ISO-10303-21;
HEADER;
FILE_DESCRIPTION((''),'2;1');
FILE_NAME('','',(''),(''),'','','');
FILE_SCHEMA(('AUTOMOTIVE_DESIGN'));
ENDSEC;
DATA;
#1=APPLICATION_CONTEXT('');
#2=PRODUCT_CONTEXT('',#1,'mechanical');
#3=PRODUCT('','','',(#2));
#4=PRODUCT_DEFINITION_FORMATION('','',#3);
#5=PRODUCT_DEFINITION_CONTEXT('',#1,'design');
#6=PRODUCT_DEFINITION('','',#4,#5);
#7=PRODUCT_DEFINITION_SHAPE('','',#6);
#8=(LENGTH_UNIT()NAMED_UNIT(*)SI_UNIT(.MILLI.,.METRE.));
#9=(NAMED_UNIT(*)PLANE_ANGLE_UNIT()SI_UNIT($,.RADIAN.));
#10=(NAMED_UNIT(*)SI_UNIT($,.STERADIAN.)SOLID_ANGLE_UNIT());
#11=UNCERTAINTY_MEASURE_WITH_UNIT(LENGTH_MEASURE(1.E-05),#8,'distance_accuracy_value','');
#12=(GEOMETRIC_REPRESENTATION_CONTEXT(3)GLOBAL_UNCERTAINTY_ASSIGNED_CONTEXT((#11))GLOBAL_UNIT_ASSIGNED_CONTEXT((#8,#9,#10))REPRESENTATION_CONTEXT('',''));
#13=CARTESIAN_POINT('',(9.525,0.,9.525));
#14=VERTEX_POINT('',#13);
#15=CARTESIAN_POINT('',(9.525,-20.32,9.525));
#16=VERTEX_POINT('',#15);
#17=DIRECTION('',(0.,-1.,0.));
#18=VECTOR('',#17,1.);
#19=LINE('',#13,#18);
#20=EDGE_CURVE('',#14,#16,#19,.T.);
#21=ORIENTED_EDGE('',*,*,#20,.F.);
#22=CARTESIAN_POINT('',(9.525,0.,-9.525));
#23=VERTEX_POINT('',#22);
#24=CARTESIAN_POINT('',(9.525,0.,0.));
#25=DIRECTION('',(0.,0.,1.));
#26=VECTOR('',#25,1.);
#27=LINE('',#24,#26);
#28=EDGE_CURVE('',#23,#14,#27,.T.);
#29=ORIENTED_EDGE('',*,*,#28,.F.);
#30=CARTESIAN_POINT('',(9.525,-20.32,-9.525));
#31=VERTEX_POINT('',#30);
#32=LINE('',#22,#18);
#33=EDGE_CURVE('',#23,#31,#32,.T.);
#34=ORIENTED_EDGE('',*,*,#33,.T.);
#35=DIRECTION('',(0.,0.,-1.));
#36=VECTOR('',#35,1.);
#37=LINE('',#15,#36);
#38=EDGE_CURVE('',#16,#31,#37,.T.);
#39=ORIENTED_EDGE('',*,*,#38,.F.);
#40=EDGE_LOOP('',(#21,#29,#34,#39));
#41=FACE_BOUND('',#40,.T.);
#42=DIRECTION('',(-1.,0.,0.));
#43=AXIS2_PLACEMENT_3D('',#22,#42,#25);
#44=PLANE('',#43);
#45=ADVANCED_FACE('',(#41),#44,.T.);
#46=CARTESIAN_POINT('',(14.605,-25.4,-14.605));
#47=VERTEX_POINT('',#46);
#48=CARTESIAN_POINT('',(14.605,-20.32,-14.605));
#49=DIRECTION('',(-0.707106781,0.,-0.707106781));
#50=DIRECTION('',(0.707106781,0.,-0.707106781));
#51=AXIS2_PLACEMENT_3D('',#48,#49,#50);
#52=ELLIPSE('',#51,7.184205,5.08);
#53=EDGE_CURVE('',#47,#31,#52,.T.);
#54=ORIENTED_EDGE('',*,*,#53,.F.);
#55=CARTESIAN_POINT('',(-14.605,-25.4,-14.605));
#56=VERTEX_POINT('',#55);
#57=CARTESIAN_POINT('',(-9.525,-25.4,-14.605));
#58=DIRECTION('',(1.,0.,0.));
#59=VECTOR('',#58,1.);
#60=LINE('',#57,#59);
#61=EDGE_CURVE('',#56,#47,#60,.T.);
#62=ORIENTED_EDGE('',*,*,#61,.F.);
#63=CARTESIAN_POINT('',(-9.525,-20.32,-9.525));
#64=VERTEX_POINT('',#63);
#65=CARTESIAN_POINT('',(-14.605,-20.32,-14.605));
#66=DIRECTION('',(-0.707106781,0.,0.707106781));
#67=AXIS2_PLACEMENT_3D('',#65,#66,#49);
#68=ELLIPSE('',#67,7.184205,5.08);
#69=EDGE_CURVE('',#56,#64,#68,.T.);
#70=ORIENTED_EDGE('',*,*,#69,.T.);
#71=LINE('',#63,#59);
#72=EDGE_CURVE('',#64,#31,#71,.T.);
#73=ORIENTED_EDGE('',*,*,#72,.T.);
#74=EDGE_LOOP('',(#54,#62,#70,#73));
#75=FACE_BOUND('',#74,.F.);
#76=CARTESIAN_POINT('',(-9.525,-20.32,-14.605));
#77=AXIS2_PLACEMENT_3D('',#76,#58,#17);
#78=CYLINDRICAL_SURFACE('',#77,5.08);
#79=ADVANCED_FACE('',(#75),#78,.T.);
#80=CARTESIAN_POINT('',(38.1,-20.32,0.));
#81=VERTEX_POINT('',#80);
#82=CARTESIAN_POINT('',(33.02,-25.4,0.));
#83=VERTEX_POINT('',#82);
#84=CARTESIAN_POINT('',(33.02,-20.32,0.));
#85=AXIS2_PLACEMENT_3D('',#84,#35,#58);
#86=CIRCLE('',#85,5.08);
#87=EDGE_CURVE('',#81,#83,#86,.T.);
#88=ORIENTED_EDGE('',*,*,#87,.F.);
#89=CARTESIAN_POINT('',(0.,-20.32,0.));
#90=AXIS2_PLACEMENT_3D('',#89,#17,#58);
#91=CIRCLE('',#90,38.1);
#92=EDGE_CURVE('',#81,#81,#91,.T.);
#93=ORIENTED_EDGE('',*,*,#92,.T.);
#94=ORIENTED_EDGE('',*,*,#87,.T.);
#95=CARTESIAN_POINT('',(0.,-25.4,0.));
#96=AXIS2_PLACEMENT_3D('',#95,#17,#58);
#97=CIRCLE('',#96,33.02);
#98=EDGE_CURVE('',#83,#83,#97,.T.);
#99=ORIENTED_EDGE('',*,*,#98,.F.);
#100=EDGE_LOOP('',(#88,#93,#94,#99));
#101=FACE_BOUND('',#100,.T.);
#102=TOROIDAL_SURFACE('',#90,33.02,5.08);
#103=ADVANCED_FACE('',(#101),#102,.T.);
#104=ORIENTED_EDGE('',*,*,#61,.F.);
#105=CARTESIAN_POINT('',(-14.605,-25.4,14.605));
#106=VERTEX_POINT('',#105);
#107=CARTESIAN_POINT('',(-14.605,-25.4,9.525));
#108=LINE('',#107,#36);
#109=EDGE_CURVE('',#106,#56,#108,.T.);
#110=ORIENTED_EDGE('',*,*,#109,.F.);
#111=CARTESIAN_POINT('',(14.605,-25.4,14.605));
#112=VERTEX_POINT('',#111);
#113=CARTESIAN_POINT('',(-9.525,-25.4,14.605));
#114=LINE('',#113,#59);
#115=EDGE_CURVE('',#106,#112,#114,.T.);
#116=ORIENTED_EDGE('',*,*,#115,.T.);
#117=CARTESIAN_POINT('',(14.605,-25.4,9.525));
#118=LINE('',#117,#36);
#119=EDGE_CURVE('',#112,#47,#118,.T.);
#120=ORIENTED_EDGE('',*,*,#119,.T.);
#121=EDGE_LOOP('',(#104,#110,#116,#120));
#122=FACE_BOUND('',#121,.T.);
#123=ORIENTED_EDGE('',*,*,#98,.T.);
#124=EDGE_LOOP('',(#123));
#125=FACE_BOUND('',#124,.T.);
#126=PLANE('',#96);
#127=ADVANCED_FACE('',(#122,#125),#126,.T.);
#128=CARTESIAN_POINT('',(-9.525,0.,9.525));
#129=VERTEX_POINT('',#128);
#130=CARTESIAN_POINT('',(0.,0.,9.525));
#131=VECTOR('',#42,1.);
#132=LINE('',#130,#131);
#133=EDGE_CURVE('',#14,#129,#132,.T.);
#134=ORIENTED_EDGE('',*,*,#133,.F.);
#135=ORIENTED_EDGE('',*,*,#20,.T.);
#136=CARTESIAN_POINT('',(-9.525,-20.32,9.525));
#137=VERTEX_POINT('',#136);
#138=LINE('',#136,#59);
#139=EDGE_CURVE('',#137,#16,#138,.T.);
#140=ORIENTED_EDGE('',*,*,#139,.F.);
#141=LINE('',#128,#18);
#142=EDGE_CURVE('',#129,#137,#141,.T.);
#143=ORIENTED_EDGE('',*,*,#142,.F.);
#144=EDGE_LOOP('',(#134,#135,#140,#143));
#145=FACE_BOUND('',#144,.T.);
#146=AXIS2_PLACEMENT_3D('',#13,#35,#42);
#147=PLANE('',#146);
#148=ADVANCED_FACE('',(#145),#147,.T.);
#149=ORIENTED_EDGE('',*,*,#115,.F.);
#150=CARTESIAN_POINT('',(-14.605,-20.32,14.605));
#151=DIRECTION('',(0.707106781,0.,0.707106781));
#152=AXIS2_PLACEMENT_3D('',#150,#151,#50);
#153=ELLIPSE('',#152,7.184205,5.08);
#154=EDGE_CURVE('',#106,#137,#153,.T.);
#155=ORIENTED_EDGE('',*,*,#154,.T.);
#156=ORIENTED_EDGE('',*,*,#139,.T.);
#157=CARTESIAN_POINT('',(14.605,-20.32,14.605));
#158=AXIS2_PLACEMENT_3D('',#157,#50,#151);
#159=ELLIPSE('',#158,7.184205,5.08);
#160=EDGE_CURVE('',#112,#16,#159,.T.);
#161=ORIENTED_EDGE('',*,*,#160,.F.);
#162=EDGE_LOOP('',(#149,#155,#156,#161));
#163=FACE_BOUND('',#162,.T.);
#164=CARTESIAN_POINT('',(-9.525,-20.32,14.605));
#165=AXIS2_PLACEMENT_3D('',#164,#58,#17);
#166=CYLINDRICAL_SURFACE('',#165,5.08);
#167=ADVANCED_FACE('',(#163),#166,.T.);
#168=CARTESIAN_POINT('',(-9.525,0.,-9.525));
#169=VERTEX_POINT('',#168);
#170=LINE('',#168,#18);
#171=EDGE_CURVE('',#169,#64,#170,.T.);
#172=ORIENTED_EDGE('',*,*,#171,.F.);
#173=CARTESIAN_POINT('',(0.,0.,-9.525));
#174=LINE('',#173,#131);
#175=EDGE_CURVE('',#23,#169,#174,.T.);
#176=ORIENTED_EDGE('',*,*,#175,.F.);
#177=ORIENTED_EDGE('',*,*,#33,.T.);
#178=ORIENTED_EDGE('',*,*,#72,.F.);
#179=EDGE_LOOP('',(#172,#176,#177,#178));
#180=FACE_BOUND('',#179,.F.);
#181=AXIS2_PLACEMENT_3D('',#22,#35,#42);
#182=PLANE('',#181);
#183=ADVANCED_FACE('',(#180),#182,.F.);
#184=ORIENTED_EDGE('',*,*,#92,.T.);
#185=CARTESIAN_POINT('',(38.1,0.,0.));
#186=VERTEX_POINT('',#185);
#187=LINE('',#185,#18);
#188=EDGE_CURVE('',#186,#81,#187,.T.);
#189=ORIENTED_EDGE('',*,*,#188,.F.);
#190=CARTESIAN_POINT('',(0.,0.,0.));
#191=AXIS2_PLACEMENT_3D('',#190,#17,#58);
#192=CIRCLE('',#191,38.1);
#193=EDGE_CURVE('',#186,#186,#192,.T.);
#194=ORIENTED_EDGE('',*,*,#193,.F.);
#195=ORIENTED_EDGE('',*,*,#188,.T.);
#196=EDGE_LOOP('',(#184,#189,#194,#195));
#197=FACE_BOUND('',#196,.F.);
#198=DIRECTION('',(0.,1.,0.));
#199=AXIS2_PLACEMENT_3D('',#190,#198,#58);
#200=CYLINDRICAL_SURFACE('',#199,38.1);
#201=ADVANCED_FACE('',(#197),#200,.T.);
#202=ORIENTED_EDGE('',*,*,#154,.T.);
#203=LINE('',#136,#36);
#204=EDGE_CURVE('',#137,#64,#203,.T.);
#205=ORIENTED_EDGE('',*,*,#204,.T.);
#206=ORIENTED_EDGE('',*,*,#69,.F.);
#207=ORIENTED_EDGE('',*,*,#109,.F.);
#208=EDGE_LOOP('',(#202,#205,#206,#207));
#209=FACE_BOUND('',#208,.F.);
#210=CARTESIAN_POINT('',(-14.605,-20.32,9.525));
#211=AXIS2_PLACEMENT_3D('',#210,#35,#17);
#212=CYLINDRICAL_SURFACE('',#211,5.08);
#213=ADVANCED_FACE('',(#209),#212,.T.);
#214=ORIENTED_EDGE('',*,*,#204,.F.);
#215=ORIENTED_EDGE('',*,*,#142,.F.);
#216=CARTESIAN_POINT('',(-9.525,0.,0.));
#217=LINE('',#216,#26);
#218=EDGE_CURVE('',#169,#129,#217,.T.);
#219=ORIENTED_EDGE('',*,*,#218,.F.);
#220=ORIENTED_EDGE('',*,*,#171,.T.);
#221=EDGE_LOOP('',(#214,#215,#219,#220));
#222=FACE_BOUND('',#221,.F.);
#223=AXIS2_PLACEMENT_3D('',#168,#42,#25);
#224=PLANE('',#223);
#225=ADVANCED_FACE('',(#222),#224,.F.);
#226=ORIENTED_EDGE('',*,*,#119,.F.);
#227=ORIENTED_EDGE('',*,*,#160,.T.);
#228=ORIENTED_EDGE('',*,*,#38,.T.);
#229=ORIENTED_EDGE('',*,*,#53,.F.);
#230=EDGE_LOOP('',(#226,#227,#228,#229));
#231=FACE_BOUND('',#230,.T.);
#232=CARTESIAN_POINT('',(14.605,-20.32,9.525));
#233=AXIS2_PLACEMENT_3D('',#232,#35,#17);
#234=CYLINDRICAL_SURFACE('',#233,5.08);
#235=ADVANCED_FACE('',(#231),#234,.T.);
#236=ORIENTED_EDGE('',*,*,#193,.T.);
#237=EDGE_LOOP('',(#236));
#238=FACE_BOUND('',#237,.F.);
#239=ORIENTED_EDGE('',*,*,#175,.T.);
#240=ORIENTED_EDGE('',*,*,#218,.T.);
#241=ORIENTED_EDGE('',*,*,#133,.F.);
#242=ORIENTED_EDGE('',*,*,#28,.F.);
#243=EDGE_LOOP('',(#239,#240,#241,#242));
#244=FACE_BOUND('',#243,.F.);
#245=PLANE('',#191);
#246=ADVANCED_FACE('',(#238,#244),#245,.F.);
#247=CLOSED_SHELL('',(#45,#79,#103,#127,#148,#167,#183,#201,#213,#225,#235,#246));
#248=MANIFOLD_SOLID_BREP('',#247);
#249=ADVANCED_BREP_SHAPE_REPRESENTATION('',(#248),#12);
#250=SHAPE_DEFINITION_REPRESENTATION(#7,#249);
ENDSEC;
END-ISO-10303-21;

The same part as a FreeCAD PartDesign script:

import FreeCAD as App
import Part
import Sketcher
from FreeCAD import Vector
Q = App.Units.Quantity


def edges_at(feature, points):
    """Names of the edges that pass closest to the given points."""
    edges = feature.Shape.Edges
    near = lambda p: min(range(len(edges)), key=lambda i: edges[i].distToShape(Part.Vertex(*p))[0])
    return sorted({f"Edge{near(p) + 1}" for p in points})


def add_polygon(sketch, points):
    """Adds a closed chain of lines whose ends are joined by coincident constraints."""
    first, n = sketch.GeometryCount, len(points)
    for a, b in zip(points, points[1:] + points[:1]):
        sketch.addGeometry(Part.LineSegment(App.Vector(*a, 0), App.Vector(*b, 0)), False)
    for i in range(n):
        sketch.addConstraint(Sketcher.Constraint("Coincident", first + i, 2, first + (i + 1) % n, 1))

doc = App.newDocument("Part")
body = doc.addObject("PartDesign::Body", "Body")

# Sketch on XZ plane
sketch1 = body.newObject("Sketcher::SketchObject", "Sketch")
sketch1.AttachmentSupport = (doc.getObject("XZ_Plane"), [""])
sketch1.MapMode = "FlatFace"
sketch1.addGeometry(Part.Circle(Vector(0, 0, 0), Vector(0, 0, 1), 38.1), False)
sketch1.addConstraint([
    Sketcher.Constraint("Coincident", 0, 3, -1, 1),
    Sketcher.Constraint("Diameter", 0, Q("3 in")),
])
pad1 = body.newObject("PartDesign::Pad", "Pad")
pad1.Profile = sketch1
pad1.Length = Q("1 in")
doc.recompute()

fillet = body.newObject("PartDesign::Fillet", "Fillet")
fillet.Base = (pad1, edges_at(pad1, [(-38.1, -25.4, 0)]))
fillet.Radius = Q("0.2 in")

# Sketch on XZ plane
sketch2 = body.newObject("Sketcher::SketchObject", "Sketch001")
sketch2.AttachmentSupport = (doc.getObject("XZ_Plane"), [""])
sketch2.MapMode = "FlatFace"
add_polygon(sketch2, [(9.525, 9.525), (9.525, -9.525), (-9.525, -9.525), (-9.525, 9.525)])  # lines 0-3
sketch2.addConstraint([
    Sketcher.Constraint("Vertical", 0),
    Sketcher.Constraint("Horizontal", 1),
    Sketcher.Constraint("Vertical", 2),
    Sketcher.Constraint("Horizontal", 3),
    Sketcher.Constraint("Symmetric", 0, 2, 2, 2, -1, 1),
    Sketcher.Constraint("Equal", 3, 0),
    Sketcher.Constraint("DistanceX", 1, 2, 1, 1, Q("0.75 in")),
])
pocket1 = body.newObject("PartDesign::Pocket", "Pocket")
pocket1.Profile = sketch2
pocket1.Type = "ThroughAll"
pocket1.Reversed = True
doc.recompute()

fillet2 = body.newObject("PartDesign::Fillet", "Fillet001")
fillet2.Base = (pocket1, edges_at(pocket1, [
    (0, -25.4, 9.525),
    (-9.525, -25.4, 0),
    (0, -25.4, -9.525),
    (9.525, -25.4, 0),
]))
fillet2.Radius = Q("0.2 in")

doc.recompute()
